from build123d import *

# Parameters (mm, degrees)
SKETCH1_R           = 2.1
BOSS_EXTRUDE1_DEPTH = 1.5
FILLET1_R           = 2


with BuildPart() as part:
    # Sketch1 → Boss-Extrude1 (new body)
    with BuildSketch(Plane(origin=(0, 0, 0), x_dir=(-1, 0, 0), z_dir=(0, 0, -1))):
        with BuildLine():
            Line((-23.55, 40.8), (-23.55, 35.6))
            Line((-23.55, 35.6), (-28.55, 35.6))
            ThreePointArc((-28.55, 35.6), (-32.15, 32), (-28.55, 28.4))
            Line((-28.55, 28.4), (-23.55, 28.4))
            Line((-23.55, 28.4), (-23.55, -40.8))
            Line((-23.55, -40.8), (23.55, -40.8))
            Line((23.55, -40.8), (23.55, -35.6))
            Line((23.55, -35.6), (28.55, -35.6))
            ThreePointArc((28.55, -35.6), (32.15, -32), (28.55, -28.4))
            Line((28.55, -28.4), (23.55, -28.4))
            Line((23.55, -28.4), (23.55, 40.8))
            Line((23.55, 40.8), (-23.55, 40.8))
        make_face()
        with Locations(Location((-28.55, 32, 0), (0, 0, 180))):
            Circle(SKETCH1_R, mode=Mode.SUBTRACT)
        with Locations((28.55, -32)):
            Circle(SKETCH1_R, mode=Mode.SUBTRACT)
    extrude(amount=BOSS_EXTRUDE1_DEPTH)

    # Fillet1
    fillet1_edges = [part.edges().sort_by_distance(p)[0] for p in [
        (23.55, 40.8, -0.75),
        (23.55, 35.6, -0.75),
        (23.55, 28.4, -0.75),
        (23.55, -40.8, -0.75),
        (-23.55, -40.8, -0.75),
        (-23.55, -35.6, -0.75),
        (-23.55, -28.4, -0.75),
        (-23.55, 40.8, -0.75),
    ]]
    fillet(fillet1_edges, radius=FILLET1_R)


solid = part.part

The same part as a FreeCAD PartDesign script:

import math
import FreeCAD as App
import Part
import Sketcher
from FreeCAD import Vector


def edges_at(feature, points):
    """Names of the edges that pass closest to the given points."""
    edges = feature.Shape.Edges
    near = lambda p: min(range(len(edges)), key=lambda i: edges[i].distToShape(Part.Vertex(*p))[0])
    return sorted({f"Edge{near(p) + 1}" for p in points})

doc = App.newDocument("Part")
body = doc.addObject("PartDesign::Body", "Body")

# Sketch on XY plane
sketch1 = body.newObject("Sketcher::SketchObject", "Sketch")
sketch1.AttachmentSupport = (doc.getObject("XY_Plane"), [""])
sketch1.MapMode = "FlatFace"
sketch1.addGeometry([
    Part.LineSegment(Vector(23.55, 40.8, 0), Vector(23.55, 35.6, 0)),  # 0
    Part.LineSegment(Vector(23.55, 35.6, 0), Vector(28.55, 35.6, 0)),  # 1
    Part.ArcOfCircle(Part.Circle(Vector(28.55, 32, 0), Vector(0, 0, 1), 3.6), math.radians(-90), math.radians(90)),  # 2
    Part.LineSegment(Vector(28.55, 28.4, 0), Vector(23.55, 28.4, 0)),  # 3
    Part.LineSegment(Vector(23.55, 28.4, 0), Vector(23.55, -40.8, 0)),  # 4
    Part.LineSegment(Vector(23.55, -40.8, 0), Vector(-23.55, -40.8, 0)),  # 5
    Part.LineSegment(Vector(-23.55, -40.8, 0), Vector(-23.55, -35.6, 0)),  # 6
    Part.LineSegment(Vector(-23.55, -35.6, 0), Vector(-28.55, -35.6, 0)),  # 7
    Part.ArcOfCircle(Part.Circle(Vector(-28.55, -32, 0), Vector(0, 0, 1), 3.6), math.radians(90), math.radians(270)),  # 8
    Part.LineSegment(Vector(-28.55, -28.4, 0), Vector(-23.55, -28.4, 0)),  # 9
    Part.LineSegment(Vector(-23.55, -28.4, 0), Vector(-23.55, 40.8, 0)),  # 10
    Part.LineSegment(Vector(-23.55, 40.8, 0), Vector(23.55, 40.8, 0)),  # 11
    Part.Circle(Vector(-28.55, -32, 0), Vector(0, 0, 1), 2.1),  # 12
    Part.Circle(Vector(28.55, 32, 0), Vector(0, 0, 1), 2.1),  # 13
], False)
sketch1.addConstraint([
    Sketcher.Constraint("Coincident", 0, 2, 1, 1),
    Sketcher.Constraint("Tangent", 1, 2, 2, 2),
    Sketcher.Constraint("Tangent", 2, 1, 3, 1),
    Sketcher.Constraint("Coincident", 3, 2, 4, 1),
    Sketcher.Constraint("Coincident", 4, 2, 5, 1),
    Sketcher.Constraint("Coincident", 5, 2, 6, 1),
    Sketcher.Constraint("Coincident", 6, 2, 7, 1),
    Sketcher.Constraint("Tangent", 7, 2, 8, 2),
    Sketcher.Constraint("Tangent", 8, 1, 9, 1),
    Sketcher.Constraint("Coincident", 9, 2, 10, 1),
    Sketcher.Constraint("Coincident", 10, 2, 11, 1),
    Sketcher.Constraint("Coincident", 11, 2, 0, 1),
    Sketcher.Constraint("Vertical", 0),
    Sketcher.Constraint("Horizontal", 1),
    Sketcher.Constraint("Horizontal", 3),
    Sketcher.Constraint("Vertical", 4),
    Sketcher.Constraint("Horizontal", 5),
    Sketcher.Constraint("Vertical", 6),
    Sketcher.Constraint("Horizontal", 7),
    Sketcher.Constraint("Horizontal", 9),
    Sketcher.Constraint("Vertical", 10),
    Sketcher.Constraint("Horizontal", 11),
    Sketcher.Constraint("Coincident", 12, 3, 8, 3),
    Sketcher.Constraint("Coincident", 13, 3, 2, 3),
    Sketcher.Constraint("Equal", 2, 8),
    Sketcher.Constraint("Equal", 12, 13),
    Sketcher.Constraint("Symmetric", 2, 3, 8, 3, -1, 1),
    Sketcher.Constraint("Symmetric", 4, 2, 10, 2, -1, 1),
    Sketcher.Constraint("Vertical", 0, 2, 3, 2),
    Sketcher.Constraint("Vertical", 6, 2, 9, 2),
    Sketcher.Constraint("Diameter", 12, 4.2),
    Sketcher.Constraint("Radius", 2, 3.6),
    Sketcher.Constraint("DistanceX", 1, 1, 1, 2, 5.0),
    Sketcher.Constraint("DistanceX", 5, 2, 5, 1, 47.1),
    Sketcher.Constraint("DistanceY", 0, 2, 0, 1, 5.2),
    Sketcher.Constraint("DistanceY", 4, 2, 4, 1, 69.2),
])
pad1 = body.newObject("PartDesign::Pad", "Pad")
pad1.Profile = sketch1
pad1.Length = 1.5
pad1.Reversed = True
doc.recompute()

fillet = body.newObject("PartDesign::Fillet", "Fillet")
fillet.Base = (pad1, edges_at(pad1, [
    (23.55, 40.8, -0.75),
    (23.55, 35.6, -0.75),
    (23.55, 28.4, -0.75),
    (23.55, -40.8, -0.75),
    (-23.55, -40.8, -0.75),
    (-23.55, -35.6, -0.75),
    (-23.55, -28.4, -0.75),
    (-23.55, 40.8, -0.75),
]))
fillet.Radius = 2

doc.recompute()
